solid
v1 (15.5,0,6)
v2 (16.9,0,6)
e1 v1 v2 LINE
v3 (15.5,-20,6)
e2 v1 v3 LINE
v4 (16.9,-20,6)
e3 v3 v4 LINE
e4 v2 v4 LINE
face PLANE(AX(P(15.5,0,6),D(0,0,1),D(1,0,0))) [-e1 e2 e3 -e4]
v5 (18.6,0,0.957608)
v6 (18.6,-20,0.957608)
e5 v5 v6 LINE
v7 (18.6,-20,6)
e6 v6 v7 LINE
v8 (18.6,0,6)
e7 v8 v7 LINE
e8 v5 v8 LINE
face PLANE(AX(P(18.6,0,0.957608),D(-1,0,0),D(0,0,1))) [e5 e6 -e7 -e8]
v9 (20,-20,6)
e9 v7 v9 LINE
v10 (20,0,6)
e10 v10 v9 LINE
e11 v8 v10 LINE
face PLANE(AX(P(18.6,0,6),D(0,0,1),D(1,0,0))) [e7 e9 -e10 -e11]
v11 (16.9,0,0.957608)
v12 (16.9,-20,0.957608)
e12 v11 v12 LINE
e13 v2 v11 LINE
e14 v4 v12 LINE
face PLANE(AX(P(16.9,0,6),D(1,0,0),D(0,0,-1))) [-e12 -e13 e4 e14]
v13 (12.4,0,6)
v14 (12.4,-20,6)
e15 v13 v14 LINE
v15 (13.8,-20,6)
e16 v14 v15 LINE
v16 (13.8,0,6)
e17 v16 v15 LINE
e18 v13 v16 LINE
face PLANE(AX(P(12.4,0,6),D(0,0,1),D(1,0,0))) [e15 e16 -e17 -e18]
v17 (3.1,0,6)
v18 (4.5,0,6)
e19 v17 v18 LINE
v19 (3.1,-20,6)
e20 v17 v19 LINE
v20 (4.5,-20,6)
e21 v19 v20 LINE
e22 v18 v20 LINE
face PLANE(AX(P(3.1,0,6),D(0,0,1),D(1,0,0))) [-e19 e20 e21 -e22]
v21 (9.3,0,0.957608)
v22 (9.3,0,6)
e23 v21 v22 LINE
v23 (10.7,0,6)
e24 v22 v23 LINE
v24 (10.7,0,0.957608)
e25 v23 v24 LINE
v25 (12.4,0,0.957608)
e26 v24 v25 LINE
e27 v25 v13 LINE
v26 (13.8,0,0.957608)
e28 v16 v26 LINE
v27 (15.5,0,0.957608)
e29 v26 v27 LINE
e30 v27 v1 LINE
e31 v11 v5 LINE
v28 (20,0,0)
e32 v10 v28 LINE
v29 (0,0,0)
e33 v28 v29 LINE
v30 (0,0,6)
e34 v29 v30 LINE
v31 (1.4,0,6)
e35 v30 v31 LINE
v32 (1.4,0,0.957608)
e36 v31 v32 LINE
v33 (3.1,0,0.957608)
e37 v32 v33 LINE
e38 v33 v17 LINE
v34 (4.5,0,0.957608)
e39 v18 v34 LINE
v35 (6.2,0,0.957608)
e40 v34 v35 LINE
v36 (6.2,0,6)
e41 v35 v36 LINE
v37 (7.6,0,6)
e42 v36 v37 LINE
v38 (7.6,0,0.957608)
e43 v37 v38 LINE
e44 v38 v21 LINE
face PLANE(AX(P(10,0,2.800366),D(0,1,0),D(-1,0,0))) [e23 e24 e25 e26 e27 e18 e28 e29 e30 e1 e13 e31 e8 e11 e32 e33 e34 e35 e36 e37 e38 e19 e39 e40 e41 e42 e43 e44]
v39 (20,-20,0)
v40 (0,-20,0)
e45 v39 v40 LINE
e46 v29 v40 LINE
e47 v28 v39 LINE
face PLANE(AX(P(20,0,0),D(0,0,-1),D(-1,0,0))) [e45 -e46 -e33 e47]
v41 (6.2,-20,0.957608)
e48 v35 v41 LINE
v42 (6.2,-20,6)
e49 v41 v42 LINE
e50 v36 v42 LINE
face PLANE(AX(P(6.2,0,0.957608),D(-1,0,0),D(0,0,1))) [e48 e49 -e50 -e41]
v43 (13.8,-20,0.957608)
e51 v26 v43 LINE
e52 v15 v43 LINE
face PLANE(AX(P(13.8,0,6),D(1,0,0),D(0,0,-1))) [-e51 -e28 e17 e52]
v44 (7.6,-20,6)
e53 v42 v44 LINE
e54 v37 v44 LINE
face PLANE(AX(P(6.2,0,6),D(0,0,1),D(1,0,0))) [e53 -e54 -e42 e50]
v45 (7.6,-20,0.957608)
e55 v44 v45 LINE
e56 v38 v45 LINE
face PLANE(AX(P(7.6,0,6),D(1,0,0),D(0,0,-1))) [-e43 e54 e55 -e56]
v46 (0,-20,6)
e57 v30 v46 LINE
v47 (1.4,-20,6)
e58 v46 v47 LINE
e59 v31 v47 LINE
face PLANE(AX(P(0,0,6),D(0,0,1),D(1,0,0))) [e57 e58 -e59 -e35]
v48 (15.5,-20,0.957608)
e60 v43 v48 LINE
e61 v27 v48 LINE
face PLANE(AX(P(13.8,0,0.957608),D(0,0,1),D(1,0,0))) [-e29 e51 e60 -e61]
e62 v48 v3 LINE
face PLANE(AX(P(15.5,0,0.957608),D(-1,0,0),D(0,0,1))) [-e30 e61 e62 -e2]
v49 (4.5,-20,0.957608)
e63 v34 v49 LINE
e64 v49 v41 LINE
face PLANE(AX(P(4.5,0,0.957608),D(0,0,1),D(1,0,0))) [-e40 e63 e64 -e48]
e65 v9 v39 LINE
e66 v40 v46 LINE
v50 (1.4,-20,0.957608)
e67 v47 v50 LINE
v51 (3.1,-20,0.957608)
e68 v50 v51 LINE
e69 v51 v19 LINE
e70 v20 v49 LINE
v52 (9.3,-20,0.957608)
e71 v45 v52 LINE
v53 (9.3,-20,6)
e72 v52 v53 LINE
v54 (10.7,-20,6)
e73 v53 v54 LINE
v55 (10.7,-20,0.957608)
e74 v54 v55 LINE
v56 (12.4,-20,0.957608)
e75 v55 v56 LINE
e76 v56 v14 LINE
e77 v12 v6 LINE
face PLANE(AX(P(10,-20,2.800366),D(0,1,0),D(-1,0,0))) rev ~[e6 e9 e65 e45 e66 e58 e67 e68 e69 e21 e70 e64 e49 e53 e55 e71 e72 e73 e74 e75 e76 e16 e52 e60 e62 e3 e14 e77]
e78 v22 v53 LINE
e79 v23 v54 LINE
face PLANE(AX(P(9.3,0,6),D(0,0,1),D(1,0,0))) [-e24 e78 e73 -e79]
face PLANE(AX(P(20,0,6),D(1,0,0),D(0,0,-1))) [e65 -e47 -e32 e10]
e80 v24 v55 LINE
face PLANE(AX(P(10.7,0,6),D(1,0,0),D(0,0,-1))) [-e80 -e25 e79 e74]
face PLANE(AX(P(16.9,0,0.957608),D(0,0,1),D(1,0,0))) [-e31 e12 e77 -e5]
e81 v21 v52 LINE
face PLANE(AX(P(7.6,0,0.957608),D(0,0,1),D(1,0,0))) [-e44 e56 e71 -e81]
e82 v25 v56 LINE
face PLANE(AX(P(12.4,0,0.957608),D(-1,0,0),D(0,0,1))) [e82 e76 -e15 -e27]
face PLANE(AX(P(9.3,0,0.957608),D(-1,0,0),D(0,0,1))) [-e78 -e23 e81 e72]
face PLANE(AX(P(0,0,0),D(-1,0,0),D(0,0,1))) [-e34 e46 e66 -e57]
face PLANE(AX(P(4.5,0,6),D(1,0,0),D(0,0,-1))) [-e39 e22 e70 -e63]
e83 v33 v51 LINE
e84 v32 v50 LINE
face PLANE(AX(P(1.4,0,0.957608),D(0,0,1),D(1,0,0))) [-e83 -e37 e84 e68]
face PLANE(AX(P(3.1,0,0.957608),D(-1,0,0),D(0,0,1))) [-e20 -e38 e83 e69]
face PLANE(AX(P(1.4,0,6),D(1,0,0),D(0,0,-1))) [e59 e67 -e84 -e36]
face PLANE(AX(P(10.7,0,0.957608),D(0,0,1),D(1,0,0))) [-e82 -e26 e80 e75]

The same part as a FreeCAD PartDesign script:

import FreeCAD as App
import Part
import Sketcher
from FreeCAD import Vector


def add_polygon(sketch, points):
    """Adds a closed chain of lines whose ends are joined by coincident constraints."""
    first, n = sketch.GeometryCount, len(points)
    for a, b in zip(points, points[1:] + points[:1]):
        sketch.addGeometry(Part.LineSegment(App.Vector(*a, 0), App.Vector(*b, 0)), False)
    for i in range(n):
        sketch.addConstraint(Sketcher.Constraint("Coincident", first + i, 2, first + (i + 1) % n, 1))

doc = App.newDocument("Part")
params = doc.addObject("Spreadsheet::Sheet", "Params")
for row, (alias, value) in enumerate([
    ("sketch1_width", "20 mm"),
    ("sketch1_height", "6 mm"),
    ("sketch1_width2", "1.4 mm"),
    ("pad1_length", "20 mm"),
], start=1):
    params.set(f"A{row}", alias)
    params.set(f"B{row}", "=" + value)
    params.setAlias(f"B{row}", alias)

body = doc.addObject("PartDesign::Body", "Body")

# Sketch on XZ plane
sketch1 = body.newObject("Sketcher::SketchObject", "Sketch")
sketch1.AttachmentSupport = (doc.getObject("XZ_Plane"), [""])
sketch1.MapMode = "FlatFace"
add_polygon(sketch1, [(0, 6), (0, 0), (20, 0), (20, 6), (18.6, 6), (18.6, 1), (16.9, 1), (16.9, 6), (15.5, 6), (15.5, 1), (13.8, 1), (13.8, 6), (12.4, 6), (12.4, 1), (10.7, 1), (10.7, 6), (9.3, 6), (9.3, 1), (7.6, 1), (7.6, 6), (6.2, 6), (6.2, 1), (4.5, 1), (4.5, 6), (3.1, 6), (3.1, 1), (1.4, 1), (1.4, 6)])  # lines 0-27
sketch1.addConstraint(Sketcher.Constraint("Vertical", 0))
sketch1.addConstraint(Sketcher.Constraint("Horizontal", 1))
sketch1.addConstraint(Sketcher.Constraint("Vertical", 2))
sketch1.addConstraint(Sketcher.Constraint("Horizontal", 3))
sketch1.addConstraint(Sketcher.Constraint("Vertical", 4))
sketch1.addConstraint(Sketcher.Constraint("Horizontal", 5))
sketch1.addConstraint(Sketcher.Constraint("Vertical", 6))
sketch1.addConstraint(Sketcher.Constraint("Horizontal", 7))
sketch1.addConstraint(Sketcher.Constraint("Vertical", 8))
sketch1.addConstraint(Sketcher.Constraint("Horizontal", 9))
sketch1.addConstraint(Sketcher.Constraint("Vertical", 10))
sketch1.addConstraint(Sketcher.Constraint("Horizontal", 11))
sketch1.addConstraint(Sketcher.Constraint("Vertical", 12))
sketch1.addConstraint(Sketcher.Constraint("Horizontal", 13))
sketch1.addConstraint(Sketcher.Constraint("Vertical", 14))
sketch1.addConstraint(Sketcher.Constraint("Horizontal", 15))
sketch1.addConstraint(Sketcher.Constraint("Vertical", 16))
sketch1.addConstraint(Sketcher.Constraint("Horizontal", 17))
sketch1.addConstraint(Sketcher.Constraint("Vertical", 18))
sketch1.addConstraint(Sketcher.Constraint("Horizontal", 19))
sketch1.addConstraint(Sketcher.Constraint("Vertical", 20))
sketch1.addConstraint(Sketcher.Constraint("Horizontal", 21))
sketch1.addConstraint(Sketcher.Constraint("Vertical", 22))
sketch1.addConstraint(Sketcher.Constraint("Horizontal", 23))
sketch1.addConstraint(Sketcher.Constraint("Vertical", 24))
sketch1.addConstraint(Sketcher.Constraint("Horizontal", 25))
sketch1.addConstraint(Sketcher.Constraint("Vertical", 26))
sketch1.addConstraint(Sketcher.Constraint("Horizontal", 27))
sketch1.addConstraint(Sketcher.Constraint("Coincident", 0, 2, -1, 1))
sketch1.addConstraint(Sketcher.Constraint("Horizontal", 3, 2, 6, 2))
sketch1.addConstraint(Sketcher.Constraint("Horizontal", 5, 2, 8, 2))
sketch1.addConstraint(Sketcher.Constraint("Horizontal", 7, 2, 10, 2))
sketch1.addConstraint(Sketcher.Constraint("Horizontal", 9, 2, 12, 2))
sketch1.addConstraint(Sketcher.Constraint("Horizontal", 11, 2, 14, 2))
sketch1.addConstraint(Sketcher.Constraint("Horizontal", 13, 2, 16, 2))
sketch1.addConstraint(Sketcher.Constraint("Horizontal", 15, 2, 18, 2))
sketch1.addConstraint(Sketcher.Constraint("Horizontal", 17, 2, 20, 2))
sketch1.addConstraint(Sketcher.Constraint("Horizontal", 19, 2, 22, 2))
sketch1.addConstraint(Sketcher.Constraint("Horizontal", 21, 2, 24, 2))
sketch1.addConstraint(Sketcher.Constraint("Horizontal", 23, 2, 26, 2))
sketch1.addConstraint(Sketcher.Constraint("Equal", 3, 7))
sketch1.addConstraint(Sketcher.Constraint("Equal", 5, 9))
sketch1.addConstraint(Sketcher.Constraint("Equal", 7, 11))
sketch1.addConstraint(Sketcher.Constraint("Equal", 9, 13))
sketch1.addConstraint(Sketcher.Constraint("Equal", 11, 15))
sketch1.addConstraint(Sketcher.Constraint("Equal", 13, 17))
sketch1.addConstraint(Sketcher.Constraint("Equal", 15, 19))
sketch1.addConstraint(Sketcher.Constraint("Equal", 17, 21))
sketch1.addConstraint(Sketcher.Constraint("Equal", 19, 23))
sketch1.addConstraint(Sketcher.Constraint("Equal", 21, 25))
sketch1.addConstraint(Sketcher.Constraint("Equal", 23, 27))
sketch1.addConstraint(Sketcher.Constraint("DistanceX", 1, 1, 1, 2, 20.0))
sketch1.addConstraint(Sketcher.Constraint("DistanceY", 0, 2, 0, 1, 6.0))
sketch1.addConstraint(Sketcher.Constraint("DistanceX", 3, 2, 3, 1, 1.4))
sketch1.addConstraint(Sketcher.Constraint("DistanceY", 4, 2, 4, 1, 5.042392))
sketch1.setExpression("Constraints[79]", "Params.sketch1_width")
sketch1.setExpression("Constraints[80]", "Params.sketch1_height")
sketch1.setExpression("Constraints[81]", "Params.sketch1_width2")
pad1 = body.newObject("PartDesign::Pad", "Pad")
pad1.Profile = sketch1
pad1.setExpression("Length", "Params.pad1_length")

doc.recompute()
